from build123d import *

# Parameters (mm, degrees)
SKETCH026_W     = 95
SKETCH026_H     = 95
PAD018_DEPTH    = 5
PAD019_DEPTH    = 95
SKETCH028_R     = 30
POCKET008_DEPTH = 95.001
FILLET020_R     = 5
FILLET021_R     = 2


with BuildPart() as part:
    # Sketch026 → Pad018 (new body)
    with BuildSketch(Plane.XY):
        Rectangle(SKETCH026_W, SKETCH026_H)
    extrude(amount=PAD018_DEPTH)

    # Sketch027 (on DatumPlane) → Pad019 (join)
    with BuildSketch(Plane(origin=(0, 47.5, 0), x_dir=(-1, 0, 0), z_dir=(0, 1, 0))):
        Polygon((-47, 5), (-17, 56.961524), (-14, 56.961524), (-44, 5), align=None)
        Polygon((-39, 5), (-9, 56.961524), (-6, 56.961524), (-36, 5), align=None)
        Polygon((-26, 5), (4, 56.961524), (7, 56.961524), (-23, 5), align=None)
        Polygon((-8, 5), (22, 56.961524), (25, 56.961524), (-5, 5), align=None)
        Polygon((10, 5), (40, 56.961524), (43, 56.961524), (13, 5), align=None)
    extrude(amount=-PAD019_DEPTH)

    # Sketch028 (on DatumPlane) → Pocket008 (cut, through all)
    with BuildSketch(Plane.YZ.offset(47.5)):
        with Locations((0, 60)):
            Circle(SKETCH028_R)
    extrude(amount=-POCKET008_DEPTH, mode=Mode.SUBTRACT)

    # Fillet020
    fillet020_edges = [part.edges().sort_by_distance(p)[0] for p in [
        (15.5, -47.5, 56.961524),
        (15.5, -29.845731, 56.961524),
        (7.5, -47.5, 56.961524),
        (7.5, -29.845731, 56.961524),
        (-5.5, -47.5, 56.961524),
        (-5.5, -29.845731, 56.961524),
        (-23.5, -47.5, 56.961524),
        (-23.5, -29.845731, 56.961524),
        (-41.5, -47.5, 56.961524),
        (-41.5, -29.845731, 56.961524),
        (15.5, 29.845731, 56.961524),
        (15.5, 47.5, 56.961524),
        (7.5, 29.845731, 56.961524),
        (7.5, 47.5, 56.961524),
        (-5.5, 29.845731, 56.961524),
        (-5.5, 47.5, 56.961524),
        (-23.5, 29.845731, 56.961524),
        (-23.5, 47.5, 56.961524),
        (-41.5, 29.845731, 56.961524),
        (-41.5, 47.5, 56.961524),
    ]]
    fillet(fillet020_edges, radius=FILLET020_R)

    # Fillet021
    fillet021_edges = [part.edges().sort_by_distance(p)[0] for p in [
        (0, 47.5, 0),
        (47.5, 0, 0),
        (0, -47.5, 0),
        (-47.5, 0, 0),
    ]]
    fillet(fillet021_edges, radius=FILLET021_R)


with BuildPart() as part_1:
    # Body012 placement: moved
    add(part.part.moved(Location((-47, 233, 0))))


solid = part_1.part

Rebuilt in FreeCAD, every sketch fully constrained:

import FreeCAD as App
import Part
import Sketcher
Q = App.Units.Quantity


def edges_at(feature, points):
    """Names of the edges that pass closest to the given points."""
    edges = feature.Shape.Edges
    near = lambda p: min(range(len(edges)), key=lambda i: edges[i].distToShape(Part.Vertex(*p))[0])
    return sorted({f"Edge{near(p) + 1}" for p in points})

doc = App.newDocument("Part")
body = doc.addObject("PartDesign::Body", "Body")

sketch1 = doc.addObject("Sketcher::SketchObject", "Sketch")
body.addObject(sketch1)
sketch1.AttachmentSupport = (doc.XY_Plane, [""])
sketch1.MapMode = "FlatFace"
sketch1.addGeometry(Part.LineSegment(App.Vector(-48, 48, 0), App.Vector(-48, -48, 0)), False)
sketch1.addGeometry(Part.LineSegment(App.Vector(-48, -48, 0), App.Vector(48, -48, 0)), False)
sketch1.addGeometry(Part.LineSegment(App.Vector(48, -48, 0), App.Vector(48, 48, 0)), False)
sketch1.addGeometry(Part.LineSegment(App.Vector(48, 48, 0), App.Vector(-48, 48, 0)), False)
sketch1.addConstraint(Sketcher.Constraint("Coincident", 0, 2, 1, 1))
sketch1.addConstraint(Sketcher.Constraint("Coincident", 1, 2, 2, 1))
sketch1.addConstraint(Sketcher.Constraint("Coincident", 2, 2, 3, 1))
sketch1.addConstraint(Sketcher.Constraint("Coincident", 3, 2, 0, 1))
sketch1.addConstraint(Sketcher.Constraint("Vertical", 0))
sketch1.addConstraint(Sketcher.Constraint("Horizontal", 1))
sketch1.addConstraint(Sketcher.Constraint("Vertical", 2))
sketch1.addConstraint(Sketcher.Constraint("Horizontal", 3))
sketch1.addConstraint(Sketcher.Constraint("Symmetric", 0, 2, 2, 2, -1, 1))
sketch1.addConstraint(Sketcher.Constraint("Equal", 3, 0))
sketch1.addConstraint(Sketcher.Constraint("DistanceX", 1, 1, 1, 2, 95.0))
pad1 = doc.addObject("PartDesign::Pad", "Pad")
body.addObject(pad1)
pad1.Profile = sketch1
pad1.Length = 5

sketch2 = doc.addObject("Sketcher::SketchObject", "Sketch001")
body.addObject(sketch2)
sketch2.AttachmentSupport = (doc.XZ_Plane, [""])
sketch2.MapMode = "FlatFace"
sketch2.AttachmentOffset = App.Placement(App.Vector(0, 0, -47.5), App.Rotation())
sketch2.addGeometry(Part.LineSegment(App.Vector(17, 57, 0), App.Vector(47, 5, 0)), False)
sketch2.addGeometry(Part.LineSegment(App.Vector(47, 5, 0), App.Vector(44, 5, 0)), False)
sketch2.addGeometry(Part.LineSegment(App.Vector(44, 5, 0), App.Vector(14, 57, 0)), False)
sketch2.addGeometry(Part.LineSegment(App.Vector(14, 57, 0), App.Vector(17, 57, 0)), False)
sketch2.addGeometry(Part.LineSegment(App.Vector(9, 57, 0), App.Vector(39, 5, 0)), False)
sketch2.addGeometry(Part.LineSegment(App.Vector(39, 5, 0), App.Vector(36, 5, 0)), False)
sketch2.addGeometry(Part.LineSegment(App.Vector(36, 5, 0), App.Vector(6, 57, 0)), False)
sketch2.addGeometry(Part.LineSegment(App.Vector(6, 57, 0), App.Vector(9, 57, 0)), False)
sketch2.addGeometry(Part.LineSegment(App.Vector(-4, 57, 0), App.Vector(26, 5, 0)), False)
sketch2.addGeometry(Part.LineSegment(App.Vector(26, 5, 0), App.Vector(23, 5, 0)), False)
sketch2.addGeometry(Part.LineSegment(App.Vector(23, 5, 0), App.Vector(-7, 57, 0)), False)
sketch2.addGeometry(Part.LineSegment(App.Vector(-7, 57, 0), App.Vector(-4, 57, 0)), False)
sketch2.addGeometry(Part.LineSegment(App.Vector(-22, 57, 0), App.Vector(8, 5, 0)), False)
sketch2.addGeometry(Part.LineSegment(App.Vector(8, 5, 0), App.Vector(5, 5, 0)), False)
sketch2.addGeometry(Part.LineSegment(App.Vector(5, 5, 0), App.Vector(-25, 57, 0)), False)
sketch2.addGeometry(Part.LineSegment(App.Vector(-25, 57, 0), App.Vector(-22, 57, 0)), False)
sketch2.addGeometry(Part.LineSegment(App.Vector(-40, 57, 0), App.Vector(-10, 5, 0)), False)
sketch2.addGeometry(Part.LineSegment(App.Vector(-10, 5, 0), App.Vector(-13, 5, 0)), False)
sketch2.addGeometry(Part.LineSegment(App.Vector(-13, 5, 0), App.Vector(-43, 57, 0)), False)
sketch2.addGeometry(Part.LineSegment(App.Vector(-43, 57, 0), App.Vector(-40, 57, 0)), False)
sketch2.addConstraint(Sketcher.Constraint("Coincident", 0, 2, 1, 1))
sketch2.addConstraint(Sketcher.Constraint("Coincident", 1, 2, 2, 1))
sketch2.addConstraint(Sketcher.Constraint("Coincident", 2, 2, 3, 1))
sketch2.addConstraint(Sketcher.Constraint("Coincident", 3, 2, 0, 1))
sketch2.addConstraint(Sketcher.Constraint("Coincident", 4, 2, 5, 1))
sketch2.addConstraint(Sketcher.Constraint("Coincident", 5, 2, 6, 1))
sketch2.addConstraint(Sketcher.Constraint("Coincident", 6, 2, 7, 1))
sketch2.addConstraint(Sketcher.Constraint("Coincident", 7, 2, 4, 1))
sketch2.addConstraint(Sketcher.Constraint("Coincident", 8, 2, 9, 1))
sketch2.addConstraint(Sketcher.Constraint("Coincident", 9, 2, 10, 1))
sketch2.addConstraint(Sketcher.Constraint("Coincident", 10, 2, 11, 1))
sketch2.addConstraint(Sketcher.Constraint("Coincident", 11, 2, 8, 1))
sketch2.addConstraint(Sketcher.Constraint("Coincident", 12, 2, 13, 1))
sketch2.addConstraint(Sketcher.Constraint("Coincident", 13, 2, 14, 1))
sketch2.addConstraint(Sketcher.Constraint("Coincident", 14, 2, 15, 1))
sketch2.addConstraint(Sketcher.Constraint("Coincident", 15, 2, 12, 1))
sketch2.addConstraint(Sketcher.Constraint("Coincident", 16, 2, 17, 1))
sketch2.addConstraint(Sketcher.Constraint("Coincident", 17, 2, 18, 1))
sketch2.addConstraint(Sketcher.Constraint("Coincident", 18, 2, 19, 1))
sketch2.addConstraint(Sketcher.Constraint("Coincident", 19, 2, 16, 1))
sketch2.addConstraint(Sketcher.Constraint("Horizontal", 1))
sketch2.addConstraint(Sketcher.Constraint("Horizontal", 3))
sketch2.addConstraint(Sketcher.Constraint("Horizontal", 5))
sketch2.addConstraint(Sketcher.Constraint("Horizontal", 7))
sketch2.addConstraint(Sketcher.Constraint("Horizontal", 9))
sketch2.addConstraint(Sketcher.Constraint("Horizontal", 11))
sketch2.addConstraint(Sketcher.Constraint("Horizontal", 13))
sketch2.addConstraint(Sketcher.Constraint("Horizontal", 15))
sketch2.addConstraint(Sketcher.Constraint("Horizontal", 17))
sketch2.addConstraint(Sketcher.Constraint("Horizontal", 19))
sketch2.addConstraint(Sketcher.Constraint("Parallel", 0, 2))
sketch2.addConstraint(Sketcher.Constraint("Parallel", 2, 4))
sketch2.addConstraint(Sketcher.Constraint("Parallel", 4, 6))
sketch2.addConstraint(Sketcher.Constraint("Parallel", 6, 8))
sketch2.addConstraint(Sketcher.Constraint("Parallel", 8, 10))
sketch2.addConstraint(Sketcher.Constraint("Parallel", 10, 12))
sketch2.addConstraint(Sketcher.Constraint("Parallel", 12, 14))
sketch2.addConstraint(Sketcher.Constraint("Parallel", 14, 16))
sketch2.addConstraint(Sketcher.Constraint("Parallel", 16, 18))
sketch2.addConstraint(Sketcher.Constraint("Horizontal", 1, 2, 4, 2))
sketch2.addConstraint(Sketcher.Constraint("Horizontal", 3, 2, 6, 2))
sketch2.addConstraint(Sketcher.Constraint("Horizontal", 5, 2, 8, 2))
sketch2.addConstraint(Sketcher.Constraint("Horizontal", 7, 2, 10, 2))
sketch2.addConstraint(Sketcher.Constraint("Horizontal", 9, 2, 12, 2))
sketch2.addConstraint(Sketcher.Constraint("Horizontal", 11, 2, 14, 2))
sketch2.addConstraint(Sketcher.Constraint("Horizontal", 13, 2, 16, 2))
sketch2.addConstraint(Sketcher.Constraint("Horizontal", 15, 2, 18, 2))
sketch2.addConstraint(Sketcher.Constraint("Equal", 3, 5))
sketch2.addConstraint(Sketcher.Constraint("Equal", 7, 9))
sketch2.addConstraint(Sketcher.Constraint("Equal", 11, 13))
sketch2.addConstraint(Sketcher.Constraint("Equal", 15, 17))
sketch2.addConstraint(Sketcher.Constraint("DistanceX", 1, 2, 1, 1, 3.0))
sketch2.addConstraint(Sketcher.Constraint("Angle", 0, Q("-60 deg")))
sketch2.addConstraint(Sketcher.Constraint("Distance", 0, 60.0))
sketch2.addConstraint(Sketcher.Constraint("DistanceX", -1, 1, 0, 2, 47.0))
sketch2.addConstraint(Sketcher.Constraint("DistanceY", -1, 1, 0, 2, 5.0))
sketch2.addConstraint(Sketcher.Constraint("DistanceX", -1, 1, 4, 2, 39.0))
sketch2.addConstraint(Sketcher.Constraint("DistanceX", -1, 1, 8, 2, 26.0))
sketch2.addConstraint(Sketcher.Constraint("DistanceX", -1, 1, 12, 2, 8.0))
sketch2.addConstraint(Sketcher.Constraint("DistanceX", 16, 2, -1, 1, 10.0))
pad2 = doc.addObject("PartDesign::Pad", "Pad001")
body.addObject(pad2)
pad2.Profile = sketch2
pad2.Length = 95

sketch3 = doc.addObject("Sketcher::SketchObject", "Sketch002")
body.addObject(sketch3)
sketch3.AttachmentSupport = (doc.YZ_Plane, [""])
sketch3.MapMode = "FlatFace"
sketch3.AttachmentOffset = App.Placement(App.Vector(0, 0, 47.5), App.Rotation())
sketch3.addGeometry(Part.Circle(App.Vector(0, 60, 0), App.Vector(0, 0, 1), 30), False)
sketch3.addConstraint(Sketcher.Constraint("PointOnObject", 0, 3, -2))
sketch3.addConstraint(Sketcher.Constraint("Diameter", 0, 60.0))
sketch3.addConstraint(Sketcher.Constraint("DistanceY", -1, 1, 0, 3, 60.0))
pocket1 = doc.addObject("PartDesign::Pocket", "Pocket")
body.addObject(pocket1)
pocket1.Profile = sketch3
pocket1.Type = "ThroughAll"
doc.recompute()

fillet = doc.addObject("PartDesign::Fillet", "Fillet")
body.addObject(fillet)
fillet.Base = (pocket1, edges_at(pocket1, [
    (15.5, -47.5, 56.962),
    (15.5, -29.846, 56.962),
    (7.5, -47.5, 56.962),
    (7.5, -29.846, 56.962),
    (-5.5, -47.5, 56.962),
    (-5.5, -29.846, 56.962),
    (-23.5, -47.5, 56.962),
    (-23.5, -29.846, 56.962),
    (-41.5, -47.5, 56.962),
    (-41.5, -29.846, 56.962),
    (15.5, 29.846, 56.962),
    (15.5, 47.5, 56.962),
    (7.5, 29.846, 56.962),
    (7.5, 47.5, 56.962),
    (-5.5, 29.846, 56.962),
    (-5.5, 47.5, 56.962),
    (-23.5, 29.846, 56.962),
    (-23.5, 47.5, 56.962),
    (-41.5, 29.846, 56.962),
    (-41.5, 47.5, 56.962),
]))
fillet.Radius = 5
doc.recompute()

fillet2 = doc.addObject("PartDesign::Fillet", "Fillet001")
body.addObject(fillet2)
fillet2.Base = (fillet, edges_at(fillet, [
    (0, 47.5, 0),
    (47.5, 0, 0),
    (0, -47.5, 0),
    (-47.5, 0, 0),
]))
fillet2.Radius = 2
body2 = doc.addObject("PartDesign::Body", "Body001")
doc.recompute()

body.Placement = App.Placement(App.Vector(-47, 233, 0), App.Rotation(App.Vector(0, 0, 1), 0))
boolean = doc.addObject("PartDesign::Boolean", "Boolean")
body2.addObject(boolean)
boolean.Type = "Fuse"
boolean.addObjects([body])

doc.recompute()
